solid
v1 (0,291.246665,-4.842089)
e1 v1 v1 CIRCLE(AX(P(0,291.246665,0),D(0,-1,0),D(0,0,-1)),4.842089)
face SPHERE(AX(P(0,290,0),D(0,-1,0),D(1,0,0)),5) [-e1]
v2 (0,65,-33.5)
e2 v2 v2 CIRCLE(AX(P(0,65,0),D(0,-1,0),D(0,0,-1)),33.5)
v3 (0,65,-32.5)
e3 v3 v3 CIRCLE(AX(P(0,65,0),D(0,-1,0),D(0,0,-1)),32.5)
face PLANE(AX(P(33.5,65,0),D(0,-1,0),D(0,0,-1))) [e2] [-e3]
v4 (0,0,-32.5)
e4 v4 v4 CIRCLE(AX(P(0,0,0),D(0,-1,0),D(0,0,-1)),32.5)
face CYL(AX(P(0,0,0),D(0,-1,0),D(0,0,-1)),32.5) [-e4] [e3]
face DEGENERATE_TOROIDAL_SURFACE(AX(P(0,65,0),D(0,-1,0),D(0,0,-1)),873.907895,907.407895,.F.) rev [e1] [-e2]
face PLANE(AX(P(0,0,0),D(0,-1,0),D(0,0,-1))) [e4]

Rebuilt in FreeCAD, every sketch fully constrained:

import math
import FreeCAD as App
import Part
import Sketcher
from FreeCAD import Vector

doc = App.newDocument("Part")
params = doc.addObject("Spreadsheet::Sheet", "Params")
for row, (alias, value) in enumerate([
    ("sketch1_radius", "5 mm"),
    ("sketch1_width", "1 mm"),
    ("sketch1_height", "65 mm"),
    ("sketch1_height2", "295 mm"),
    ("sketch1_width2", "32.5 mm"),
    ("revolution_angle", "360 deg"),
], start=1):
    params.set(f"A{row}", alias)
    params.set(f"B{row}", "=" + value)
    params.setAlias(f"B{row}", alias)

body = doc.addObject("PartDesign::Body", "Body")

# Sketch on XY plane
sketch1 = doc.addObject("Sketcher::SketchObject", "Sketch")
body.addObject(sketch1)
sketch1.AttachmentSupport = (doc.XY_Plane, [""])
sketch1.MapMode = "FlatFace"
sketch1.addGeometry([
    Part.LineSegment(Vector(0, 0, 0), Vector(32.5, 0, 0)),  # 0
    Part.LineSegment(Vector(32.5, 0, 0), Vector(32.5, 65, 0)),  # 1
    Part.LineSegment(Vector(32.5, 65, 0), Vector(33.5, 65, 0)),  # 2
    Part.ArcOfCircle(Part.Circle(Vector(-873.907895, 65, 0), Vector(0, 0, 1), 907.407895), math.radians(0), math.radians(14.438042)),  # 3
    Part.ArcOfCircle(Part.Circle(Vector(0, 290, 0), Vector(0, 0, 1), 5), math.radians(14.438042), math.radians(90)),  # 4
    Part.LineSegment(Vector(0, 295, 0), Vector(0, 0, 0)),  # 5
], False)
sketch1.addConstraint([
    Sketcher.Constraint("Coincident", 0, 2, 1, 1),
    Sketcher.Constraint("Coincident", 1, 2, 2, 1),
    Sketcher.Constraint("Coincident", 2, 2, 3, 1),
    Sketcher.Constraint("Tangent", 3, 2, 4, 1),
    Sketcher.Constraint("Coincident", 4, 2, 5, 1),
    Sketcher.Constraint("Coincident", 5, 2, 0, 1),
    Sketcher.Constraint("Horizontal", 0),
    Sketcher.Constraint("Vertical", 1),
    Sketcher.Constraint("Horizontal", 2),
    Sketcher.Constraint("Vertical", 5),
    Sketcher.Constraint("Coincident", 5, 2, -1, 1),
    Sketcher.Constraint("PointOnObject", 4, 3, -2),
    Sketcher.Constraint("Horizontal", 3, 3, 1, 2),
    Sketcher.Constraint("Radius", 4, 5.0),
    Sketcher.Constraint("DistanceX", 2, 1, 2, 2, 1.0),
    Sketcher.Constraint("DistanceY", 1, 1, 1, 2, 65.0),
    Sketcher.Constraint("DistanceY", 5, 2, 5, 1, 295.0),
    Sketcher.Constraint("DistanceX", 0, 1, 0, 2, 32.5),
])
sketch1.setExpression("Constraints[13]", "Params.sketch1_radius")
sketch1.setExpression("Constraints[14]", "Params.sketch1_width")
sketch1.setExpression("Constraints[15]", "Params.sketch1_height")
sketch1.setExpression("Constraints[16]", "Params.sketch1_height2")
sketch1.setExpression("Constraints[17]", "Params.sketch1_width2")
revolution = doc.addObject("PartDesign::Revolution", "Revolution")
body.addObject(revolution)
revolution.Profile = sketch1
revolution.ReferenceAxis = (sketch1, ["V_Axis"])
revolution.setExpression("Angle", "Params.revolution_angle")

doc.recompute()
